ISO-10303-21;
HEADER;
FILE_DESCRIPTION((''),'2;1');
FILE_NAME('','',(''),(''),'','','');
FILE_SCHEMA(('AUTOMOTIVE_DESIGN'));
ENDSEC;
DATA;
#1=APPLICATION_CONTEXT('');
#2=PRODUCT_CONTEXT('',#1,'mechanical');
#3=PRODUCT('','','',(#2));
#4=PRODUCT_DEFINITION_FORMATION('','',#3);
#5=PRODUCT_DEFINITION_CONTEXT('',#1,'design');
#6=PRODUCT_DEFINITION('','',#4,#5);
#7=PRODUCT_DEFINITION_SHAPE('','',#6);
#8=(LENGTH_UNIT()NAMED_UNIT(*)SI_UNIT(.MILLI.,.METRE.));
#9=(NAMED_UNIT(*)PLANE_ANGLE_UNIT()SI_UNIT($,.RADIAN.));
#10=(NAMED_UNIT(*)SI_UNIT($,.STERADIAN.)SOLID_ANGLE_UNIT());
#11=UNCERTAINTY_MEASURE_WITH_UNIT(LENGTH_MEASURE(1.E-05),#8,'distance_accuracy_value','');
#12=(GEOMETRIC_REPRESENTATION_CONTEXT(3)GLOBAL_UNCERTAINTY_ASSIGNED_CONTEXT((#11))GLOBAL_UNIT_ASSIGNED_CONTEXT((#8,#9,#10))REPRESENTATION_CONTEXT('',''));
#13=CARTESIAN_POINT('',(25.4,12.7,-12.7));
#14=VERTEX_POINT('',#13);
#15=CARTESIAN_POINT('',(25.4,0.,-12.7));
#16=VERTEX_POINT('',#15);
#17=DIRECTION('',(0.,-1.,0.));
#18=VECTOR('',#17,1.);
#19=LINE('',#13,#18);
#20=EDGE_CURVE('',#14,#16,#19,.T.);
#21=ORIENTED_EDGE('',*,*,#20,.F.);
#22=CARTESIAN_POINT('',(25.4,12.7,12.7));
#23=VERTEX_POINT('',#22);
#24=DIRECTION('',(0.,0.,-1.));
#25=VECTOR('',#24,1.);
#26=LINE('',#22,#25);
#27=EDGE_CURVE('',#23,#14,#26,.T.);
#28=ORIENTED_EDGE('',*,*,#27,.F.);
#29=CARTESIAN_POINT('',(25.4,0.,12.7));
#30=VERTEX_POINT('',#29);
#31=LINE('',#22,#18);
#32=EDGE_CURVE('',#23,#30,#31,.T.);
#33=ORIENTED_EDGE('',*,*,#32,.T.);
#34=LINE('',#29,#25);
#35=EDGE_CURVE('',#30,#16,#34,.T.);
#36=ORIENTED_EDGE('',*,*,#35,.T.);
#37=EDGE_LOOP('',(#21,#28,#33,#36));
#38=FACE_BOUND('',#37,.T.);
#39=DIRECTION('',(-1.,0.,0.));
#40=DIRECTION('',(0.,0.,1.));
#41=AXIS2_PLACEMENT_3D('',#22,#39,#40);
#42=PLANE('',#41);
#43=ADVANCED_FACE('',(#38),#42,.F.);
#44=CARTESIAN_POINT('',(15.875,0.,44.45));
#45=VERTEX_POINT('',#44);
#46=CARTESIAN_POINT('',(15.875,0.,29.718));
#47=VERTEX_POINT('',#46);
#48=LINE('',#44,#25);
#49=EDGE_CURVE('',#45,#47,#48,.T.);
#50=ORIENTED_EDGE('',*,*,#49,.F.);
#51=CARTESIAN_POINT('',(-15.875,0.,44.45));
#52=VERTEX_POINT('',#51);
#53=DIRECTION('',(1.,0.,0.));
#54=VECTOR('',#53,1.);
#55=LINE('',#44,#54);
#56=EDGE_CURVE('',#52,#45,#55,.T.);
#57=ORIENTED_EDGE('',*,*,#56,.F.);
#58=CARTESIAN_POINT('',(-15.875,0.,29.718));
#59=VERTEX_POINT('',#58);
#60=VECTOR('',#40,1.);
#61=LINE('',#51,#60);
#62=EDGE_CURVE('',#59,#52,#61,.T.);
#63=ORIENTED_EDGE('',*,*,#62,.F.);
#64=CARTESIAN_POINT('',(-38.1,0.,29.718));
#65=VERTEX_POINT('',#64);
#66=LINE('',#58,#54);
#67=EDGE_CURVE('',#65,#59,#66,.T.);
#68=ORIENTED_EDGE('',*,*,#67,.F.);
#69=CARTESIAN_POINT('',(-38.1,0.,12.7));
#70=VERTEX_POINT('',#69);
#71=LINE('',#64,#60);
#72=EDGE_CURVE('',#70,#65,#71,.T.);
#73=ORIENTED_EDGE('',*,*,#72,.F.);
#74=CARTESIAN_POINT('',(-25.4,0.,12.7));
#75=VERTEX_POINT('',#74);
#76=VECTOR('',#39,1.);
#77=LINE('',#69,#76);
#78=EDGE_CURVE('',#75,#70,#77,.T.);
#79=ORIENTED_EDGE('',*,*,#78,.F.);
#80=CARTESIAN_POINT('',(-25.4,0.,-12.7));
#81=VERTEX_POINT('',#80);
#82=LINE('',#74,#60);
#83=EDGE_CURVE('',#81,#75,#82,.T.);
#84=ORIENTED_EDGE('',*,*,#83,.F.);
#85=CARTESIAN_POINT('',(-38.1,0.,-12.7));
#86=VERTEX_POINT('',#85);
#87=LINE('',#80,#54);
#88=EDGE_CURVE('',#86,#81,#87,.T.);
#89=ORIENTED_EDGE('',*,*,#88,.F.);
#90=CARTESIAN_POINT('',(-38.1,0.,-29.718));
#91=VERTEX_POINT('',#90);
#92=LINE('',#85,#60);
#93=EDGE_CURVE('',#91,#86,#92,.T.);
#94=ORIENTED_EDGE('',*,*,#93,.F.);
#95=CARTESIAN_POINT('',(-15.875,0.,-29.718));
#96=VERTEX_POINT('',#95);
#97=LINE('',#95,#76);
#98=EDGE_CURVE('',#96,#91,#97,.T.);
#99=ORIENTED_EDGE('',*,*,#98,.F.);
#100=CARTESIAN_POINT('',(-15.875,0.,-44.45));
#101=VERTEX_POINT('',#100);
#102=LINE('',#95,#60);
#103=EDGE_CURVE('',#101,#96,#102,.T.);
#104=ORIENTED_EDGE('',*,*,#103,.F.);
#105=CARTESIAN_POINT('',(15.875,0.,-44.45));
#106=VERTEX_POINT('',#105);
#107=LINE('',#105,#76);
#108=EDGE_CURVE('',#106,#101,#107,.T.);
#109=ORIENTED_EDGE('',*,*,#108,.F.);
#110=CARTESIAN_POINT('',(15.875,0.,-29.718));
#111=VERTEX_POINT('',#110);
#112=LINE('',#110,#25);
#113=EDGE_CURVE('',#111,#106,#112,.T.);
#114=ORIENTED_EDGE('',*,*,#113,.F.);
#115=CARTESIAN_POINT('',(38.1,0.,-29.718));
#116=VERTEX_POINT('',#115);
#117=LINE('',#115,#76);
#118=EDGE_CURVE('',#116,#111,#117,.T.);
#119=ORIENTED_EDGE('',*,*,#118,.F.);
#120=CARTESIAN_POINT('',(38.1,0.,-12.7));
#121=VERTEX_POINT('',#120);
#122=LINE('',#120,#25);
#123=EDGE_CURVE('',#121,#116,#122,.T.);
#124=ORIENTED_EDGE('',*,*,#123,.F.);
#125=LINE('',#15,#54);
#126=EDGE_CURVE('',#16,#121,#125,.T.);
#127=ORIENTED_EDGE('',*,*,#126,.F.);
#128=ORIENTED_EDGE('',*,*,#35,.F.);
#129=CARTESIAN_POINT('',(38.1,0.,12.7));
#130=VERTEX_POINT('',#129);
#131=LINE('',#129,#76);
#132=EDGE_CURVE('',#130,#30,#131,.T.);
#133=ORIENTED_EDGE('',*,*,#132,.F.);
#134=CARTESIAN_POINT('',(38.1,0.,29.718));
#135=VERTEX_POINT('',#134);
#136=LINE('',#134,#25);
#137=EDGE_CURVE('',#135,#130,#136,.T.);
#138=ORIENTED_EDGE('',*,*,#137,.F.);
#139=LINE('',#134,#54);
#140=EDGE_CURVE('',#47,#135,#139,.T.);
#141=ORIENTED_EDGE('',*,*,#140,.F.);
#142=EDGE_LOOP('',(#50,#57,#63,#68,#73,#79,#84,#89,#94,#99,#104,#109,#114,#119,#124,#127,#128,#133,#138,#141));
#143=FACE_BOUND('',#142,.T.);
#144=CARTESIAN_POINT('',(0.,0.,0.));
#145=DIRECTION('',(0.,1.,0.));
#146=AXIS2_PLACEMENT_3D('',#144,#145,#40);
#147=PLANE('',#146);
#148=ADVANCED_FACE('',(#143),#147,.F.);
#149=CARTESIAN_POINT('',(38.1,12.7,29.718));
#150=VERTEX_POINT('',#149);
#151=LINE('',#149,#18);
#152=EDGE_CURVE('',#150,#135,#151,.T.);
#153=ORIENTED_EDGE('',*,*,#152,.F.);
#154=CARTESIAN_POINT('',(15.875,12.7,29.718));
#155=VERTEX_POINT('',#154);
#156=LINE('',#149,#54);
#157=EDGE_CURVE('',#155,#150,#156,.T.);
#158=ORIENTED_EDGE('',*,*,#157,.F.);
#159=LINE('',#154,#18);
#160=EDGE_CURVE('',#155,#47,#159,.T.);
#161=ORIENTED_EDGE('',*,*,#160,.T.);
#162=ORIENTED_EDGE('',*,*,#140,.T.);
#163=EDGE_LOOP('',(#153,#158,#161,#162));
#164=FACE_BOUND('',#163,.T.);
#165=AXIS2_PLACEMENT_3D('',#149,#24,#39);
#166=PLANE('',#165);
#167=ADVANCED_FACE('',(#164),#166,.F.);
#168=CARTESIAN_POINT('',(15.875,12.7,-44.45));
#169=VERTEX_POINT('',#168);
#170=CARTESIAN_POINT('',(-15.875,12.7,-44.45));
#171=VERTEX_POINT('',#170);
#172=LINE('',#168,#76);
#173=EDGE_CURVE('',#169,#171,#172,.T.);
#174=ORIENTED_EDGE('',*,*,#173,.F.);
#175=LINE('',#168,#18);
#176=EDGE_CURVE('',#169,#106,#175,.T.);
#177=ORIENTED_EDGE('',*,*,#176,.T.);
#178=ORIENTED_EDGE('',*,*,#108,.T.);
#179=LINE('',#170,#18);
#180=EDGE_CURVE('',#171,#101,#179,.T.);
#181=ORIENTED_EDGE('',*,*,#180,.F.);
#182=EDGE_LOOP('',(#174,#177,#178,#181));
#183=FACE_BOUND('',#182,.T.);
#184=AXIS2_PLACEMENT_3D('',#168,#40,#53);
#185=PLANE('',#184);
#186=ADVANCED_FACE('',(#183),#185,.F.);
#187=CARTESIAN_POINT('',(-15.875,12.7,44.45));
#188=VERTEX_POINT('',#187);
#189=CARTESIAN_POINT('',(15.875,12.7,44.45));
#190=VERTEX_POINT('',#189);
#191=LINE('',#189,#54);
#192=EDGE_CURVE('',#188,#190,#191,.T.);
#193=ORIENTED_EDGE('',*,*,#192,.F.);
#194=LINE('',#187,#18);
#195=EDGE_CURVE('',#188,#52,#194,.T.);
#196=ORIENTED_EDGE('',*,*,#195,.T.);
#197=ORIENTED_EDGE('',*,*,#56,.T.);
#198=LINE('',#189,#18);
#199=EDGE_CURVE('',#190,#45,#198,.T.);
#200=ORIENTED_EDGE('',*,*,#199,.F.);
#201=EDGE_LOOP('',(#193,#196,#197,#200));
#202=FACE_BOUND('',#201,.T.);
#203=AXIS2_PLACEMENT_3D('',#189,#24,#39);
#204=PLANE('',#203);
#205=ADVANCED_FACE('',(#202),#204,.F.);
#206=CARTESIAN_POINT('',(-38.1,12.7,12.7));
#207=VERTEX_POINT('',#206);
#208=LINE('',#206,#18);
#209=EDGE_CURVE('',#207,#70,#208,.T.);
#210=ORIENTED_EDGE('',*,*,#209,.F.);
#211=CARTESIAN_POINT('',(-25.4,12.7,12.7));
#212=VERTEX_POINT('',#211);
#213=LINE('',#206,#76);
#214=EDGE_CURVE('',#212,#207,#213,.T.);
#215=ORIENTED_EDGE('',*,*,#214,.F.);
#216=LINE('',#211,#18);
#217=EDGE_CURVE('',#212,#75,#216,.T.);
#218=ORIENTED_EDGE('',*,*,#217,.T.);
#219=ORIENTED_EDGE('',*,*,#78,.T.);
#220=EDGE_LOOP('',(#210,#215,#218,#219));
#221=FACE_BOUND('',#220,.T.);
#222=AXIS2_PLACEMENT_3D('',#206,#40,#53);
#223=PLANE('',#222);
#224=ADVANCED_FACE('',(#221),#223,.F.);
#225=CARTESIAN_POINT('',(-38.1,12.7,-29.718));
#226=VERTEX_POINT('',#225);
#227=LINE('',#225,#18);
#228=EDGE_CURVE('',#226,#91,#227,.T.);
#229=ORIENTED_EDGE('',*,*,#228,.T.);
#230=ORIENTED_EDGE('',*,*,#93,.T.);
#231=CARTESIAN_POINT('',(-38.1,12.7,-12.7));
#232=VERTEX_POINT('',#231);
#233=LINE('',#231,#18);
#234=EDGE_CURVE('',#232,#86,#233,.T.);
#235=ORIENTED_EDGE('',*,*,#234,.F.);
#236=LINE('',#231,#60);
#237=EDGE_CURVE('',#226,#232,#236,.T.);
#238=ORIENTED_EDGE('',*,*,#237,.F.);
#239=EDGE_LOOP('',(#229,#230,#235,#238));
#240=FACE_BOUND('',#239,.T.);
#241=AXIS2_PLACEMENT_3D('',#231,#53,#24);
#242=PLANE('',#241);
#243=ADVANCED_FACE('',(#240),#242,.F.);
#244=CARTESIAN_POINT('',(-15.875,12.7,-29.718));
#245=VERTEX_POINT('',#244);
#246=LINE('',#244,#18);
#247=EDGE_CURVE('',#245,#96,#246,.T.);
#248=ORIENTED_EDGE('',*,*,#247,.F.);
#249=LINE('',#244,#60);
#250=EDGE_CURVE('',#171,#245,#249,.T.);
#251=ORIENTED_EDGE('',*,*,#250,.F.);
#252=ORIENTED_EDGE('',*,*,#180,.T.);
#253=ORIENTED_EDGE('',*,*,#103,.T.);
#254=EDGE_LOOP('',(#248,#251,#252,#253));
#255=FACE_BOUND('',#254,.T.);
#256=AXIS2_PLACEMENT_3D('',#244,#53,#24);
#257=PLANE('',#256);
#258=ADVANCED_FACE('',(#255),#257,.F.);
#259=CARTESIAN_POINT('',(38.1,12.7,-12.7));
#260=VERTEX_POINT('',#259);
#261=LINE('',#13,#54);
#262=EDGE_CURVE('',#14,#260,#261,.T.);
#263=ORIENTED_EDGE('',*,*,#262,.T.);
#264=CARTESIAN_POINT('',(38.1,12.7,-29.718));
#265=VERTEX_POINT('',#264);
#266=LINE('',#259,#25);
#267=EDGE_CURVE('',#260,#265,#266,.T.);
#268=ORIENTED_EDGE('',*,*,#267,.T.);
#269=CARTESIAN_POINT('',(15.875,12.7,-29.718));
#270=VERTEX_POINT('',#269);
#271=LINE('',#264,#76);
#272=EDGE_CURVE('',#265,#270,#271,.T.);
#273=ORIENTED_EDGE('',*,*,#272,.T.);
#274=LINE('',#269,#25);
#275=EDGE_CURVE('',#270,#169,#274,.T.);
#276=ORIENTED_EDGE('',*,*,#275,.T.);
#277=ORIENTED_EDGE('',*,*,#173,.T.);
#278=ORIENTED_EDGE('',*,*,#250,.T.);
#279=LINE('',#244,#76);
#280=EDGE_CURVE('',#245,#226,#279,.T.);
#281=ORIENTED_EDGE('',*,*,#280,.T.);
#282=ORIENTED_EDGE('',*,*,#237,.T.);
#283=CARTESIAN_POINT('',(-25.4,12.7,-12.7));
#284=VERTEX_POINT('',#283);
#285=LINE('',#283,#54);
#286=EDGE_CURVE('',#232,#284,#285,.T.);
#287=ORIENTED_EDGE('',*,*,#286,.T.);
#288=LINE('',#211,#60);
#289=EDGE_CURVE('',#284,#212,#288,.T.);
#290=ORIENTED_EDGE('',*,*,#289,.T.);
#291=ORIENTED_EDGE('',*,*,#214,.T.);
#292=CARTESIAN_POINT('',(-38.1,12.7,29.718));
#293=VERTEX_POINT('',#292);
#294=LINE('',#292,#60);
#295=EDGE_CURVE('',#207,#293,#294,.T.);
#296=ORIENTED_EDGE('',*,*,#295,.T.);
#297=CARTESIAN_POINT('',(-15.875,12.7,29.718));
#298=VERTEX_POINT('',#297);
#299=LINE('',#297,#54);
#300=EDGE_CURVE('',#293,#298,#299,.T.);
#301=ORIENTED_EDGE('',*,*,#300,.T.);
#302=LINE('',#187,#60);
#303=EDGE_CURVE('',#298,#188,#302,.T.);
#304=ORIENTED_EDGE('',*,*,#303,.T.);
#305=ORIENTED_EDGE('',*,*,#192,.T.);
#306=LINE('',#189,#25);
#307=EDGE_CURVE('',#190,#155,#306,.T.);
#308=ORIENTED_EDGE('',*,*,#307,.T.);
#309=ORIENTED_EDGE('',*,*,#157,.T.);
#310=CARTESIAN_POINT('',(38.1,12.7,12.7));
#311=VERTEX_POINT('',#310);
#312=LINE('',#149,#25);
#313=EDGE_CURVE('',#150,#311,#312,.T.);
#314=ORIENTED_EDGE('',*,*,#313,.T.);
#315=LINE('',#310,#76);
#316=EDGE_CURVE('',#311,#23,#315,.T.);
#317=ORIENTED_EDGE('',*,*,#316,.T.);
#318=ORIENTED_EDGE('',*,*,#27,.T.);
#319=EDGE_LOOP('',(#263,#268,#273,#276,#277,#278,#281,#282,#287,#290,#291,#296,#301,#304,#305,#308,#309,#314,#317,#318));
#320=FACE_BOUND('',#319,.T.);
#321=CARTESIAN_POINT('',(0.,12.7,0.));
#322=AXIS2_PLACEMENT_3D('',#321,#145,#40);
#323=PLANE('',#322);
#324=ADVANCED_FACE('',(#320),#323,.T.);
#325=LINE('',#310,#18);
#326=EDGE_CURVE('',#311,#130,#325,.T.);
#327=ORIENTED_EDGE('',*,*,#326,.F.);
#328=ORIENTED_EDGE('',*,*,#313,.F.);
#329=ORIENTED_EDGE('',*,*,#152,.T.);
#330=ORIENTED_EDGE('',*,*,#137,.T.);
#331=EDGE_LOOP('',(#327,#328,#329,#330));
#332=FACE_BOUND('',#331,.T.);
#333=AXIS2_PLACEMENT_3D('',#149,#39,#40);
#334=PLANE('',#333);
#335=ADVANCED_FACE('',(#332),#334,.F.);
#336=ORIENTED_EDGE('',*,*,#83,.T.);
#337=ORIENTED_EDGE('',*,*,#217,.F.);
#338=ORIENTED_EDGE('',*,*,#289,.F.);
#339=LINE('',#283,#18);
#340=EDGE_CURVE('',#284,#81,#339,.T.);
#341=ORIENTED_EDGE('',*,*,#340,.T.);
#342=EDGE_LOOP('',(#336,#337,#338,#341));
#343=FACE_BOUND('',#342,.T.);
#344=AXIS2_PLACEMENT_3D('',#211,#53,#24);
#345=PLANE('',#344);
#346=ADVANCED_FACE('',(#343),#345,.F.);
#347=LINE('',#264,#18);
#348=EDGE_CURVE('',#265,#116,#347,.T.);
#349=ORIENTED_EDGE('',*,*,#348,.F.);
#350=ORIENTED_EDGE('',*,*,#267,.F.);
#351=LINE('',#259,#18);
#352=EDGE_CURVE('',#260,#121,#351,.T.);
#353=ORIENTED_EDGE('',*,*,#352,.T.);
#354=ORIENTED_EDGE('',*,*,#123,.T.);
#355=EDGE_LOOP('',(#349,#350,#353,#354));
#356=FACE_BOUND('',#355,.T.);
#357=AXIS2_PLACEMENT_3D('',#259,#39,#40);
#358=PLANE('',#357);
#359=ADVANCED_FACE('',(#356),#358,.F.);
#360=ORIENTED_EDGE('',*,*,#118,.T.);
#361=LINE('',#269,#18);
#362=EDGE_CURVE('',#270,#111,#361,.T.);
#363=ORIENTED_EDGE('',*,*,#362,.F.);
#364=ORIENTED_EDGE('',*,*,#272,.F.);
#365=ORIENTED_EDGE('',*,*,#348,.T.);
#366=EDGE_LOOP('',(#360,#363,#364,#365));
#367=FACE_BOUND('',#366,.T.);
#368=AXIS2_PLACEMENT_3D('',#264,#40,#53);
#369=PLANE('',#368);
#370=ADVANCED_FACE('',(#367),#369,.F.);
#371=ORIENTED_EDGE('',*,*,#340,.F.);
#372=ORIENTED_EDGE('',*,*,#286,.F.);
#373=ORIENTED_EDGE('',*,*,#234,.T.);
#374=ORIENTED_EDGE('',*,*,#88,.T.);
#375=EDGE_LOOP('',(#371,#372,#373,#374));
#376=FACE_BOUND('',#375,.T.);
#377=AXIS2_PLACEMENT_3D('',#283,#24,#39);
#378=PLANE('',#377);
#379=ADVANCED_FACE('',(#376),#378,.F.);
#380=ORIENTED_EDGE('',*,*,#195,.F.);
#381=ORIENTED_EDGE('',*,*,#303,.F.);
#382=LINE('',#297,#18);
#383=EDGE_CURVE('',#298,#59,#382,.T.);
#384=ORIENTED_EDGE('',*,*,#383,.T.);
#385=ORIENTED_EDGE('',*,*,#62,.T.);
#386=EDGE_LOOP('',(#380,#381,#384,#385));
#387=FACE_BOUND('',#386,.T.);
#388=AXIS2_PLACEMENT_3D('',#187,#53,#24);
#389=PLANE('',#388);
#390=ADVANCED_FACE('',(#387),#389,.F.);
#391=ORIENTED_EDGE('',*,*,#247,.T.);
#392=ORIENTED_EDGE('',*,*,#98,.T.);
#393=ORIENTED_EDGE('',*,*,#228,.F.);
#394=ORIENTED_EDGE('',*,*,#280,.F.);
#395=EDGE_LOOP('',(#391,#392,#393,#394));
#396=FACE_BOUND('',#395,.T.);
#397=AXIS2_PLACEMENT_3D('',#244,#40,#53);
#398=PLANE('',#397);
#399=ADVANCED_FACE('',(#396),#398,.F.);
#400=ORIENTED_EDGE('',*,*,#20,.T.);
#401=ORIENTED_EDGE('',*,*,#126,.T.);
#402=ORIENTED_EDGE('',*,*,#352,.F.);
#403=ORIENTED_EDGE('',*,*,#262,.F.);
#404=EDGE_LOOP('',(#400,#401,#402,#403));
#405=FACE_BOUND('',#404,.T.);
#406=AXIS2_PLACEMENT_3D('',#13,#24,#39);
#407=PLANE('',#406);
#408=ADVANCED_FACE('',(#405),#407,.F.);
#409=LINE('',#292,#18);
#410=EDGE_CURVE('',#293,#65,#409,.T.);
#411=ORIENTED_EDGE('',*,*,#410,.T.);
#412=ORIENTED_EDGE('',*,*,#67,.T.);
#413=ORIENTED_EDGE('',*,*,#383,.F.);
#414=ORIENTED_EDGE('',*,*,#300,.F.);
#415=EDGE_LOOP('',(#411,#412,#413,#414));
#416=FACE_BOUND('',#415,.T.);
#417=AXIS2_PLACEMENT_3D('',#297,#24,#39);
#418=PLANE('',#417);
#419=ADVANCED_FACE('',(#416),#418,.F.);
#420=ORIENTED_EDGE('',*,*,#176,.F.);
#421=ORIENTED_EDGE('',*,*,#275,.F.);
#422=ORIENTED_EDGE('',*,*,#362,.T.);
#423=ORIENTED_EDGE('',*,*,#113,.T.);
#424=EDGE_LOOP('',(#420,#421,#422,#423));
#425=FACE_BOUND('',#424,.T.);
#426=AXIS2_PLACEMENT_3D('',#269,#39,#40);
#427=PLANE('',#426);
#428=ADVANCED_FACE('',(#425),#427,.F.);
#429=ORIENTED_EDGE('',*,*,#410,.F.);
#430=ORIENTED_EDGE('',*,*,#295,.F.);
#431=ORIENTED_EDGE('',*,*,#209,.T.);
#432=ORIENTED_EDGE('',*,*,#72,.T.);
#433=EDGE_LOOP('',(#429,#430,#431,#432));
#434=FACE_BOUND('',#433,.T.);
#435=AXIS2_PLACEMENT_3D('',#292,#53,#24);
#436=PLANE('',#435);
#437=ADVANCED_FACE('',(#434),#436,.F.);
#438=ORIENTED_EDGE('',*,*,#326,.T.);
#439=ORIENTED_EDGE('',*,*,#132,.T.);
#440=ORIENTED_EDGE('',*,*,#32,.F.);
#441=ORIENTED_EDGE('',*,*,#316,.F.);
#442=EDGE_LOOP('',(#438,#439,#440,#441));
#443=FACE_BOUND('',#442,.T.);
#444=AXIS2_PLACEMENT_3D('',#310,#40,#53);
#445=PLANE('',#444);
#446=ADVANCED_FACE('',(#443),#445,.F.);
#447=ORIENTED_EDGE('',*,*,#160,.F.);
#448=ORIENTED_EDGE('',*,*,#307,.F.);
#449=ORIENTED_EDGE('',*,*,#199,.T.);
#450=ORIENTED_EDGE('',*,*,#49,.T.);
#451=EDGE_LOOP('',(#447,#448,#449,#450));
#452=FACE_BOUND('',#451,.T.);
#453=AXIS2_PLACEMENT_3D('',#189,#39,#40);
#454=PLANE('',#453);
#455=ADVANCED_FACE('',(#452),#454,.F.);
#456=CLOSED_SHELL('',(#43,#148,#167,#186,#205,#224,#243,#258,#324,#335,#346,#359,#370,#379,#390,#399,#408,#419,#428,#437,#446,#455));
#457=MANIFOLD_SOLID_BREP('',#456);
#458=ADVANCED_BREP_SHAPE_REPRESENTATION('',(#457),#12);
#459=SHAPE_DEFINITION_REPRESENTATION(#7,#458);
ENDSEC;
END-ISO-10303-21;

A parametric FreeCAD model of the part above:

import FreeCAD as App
import Part
import Sketcher

V = App.Vector
Q = App.Units.Quantity

doc = App.newDocument("Part")
body = doc.addObject("PartDesign::Body", "Body")

# Sketch on XZ plane
sketch1 = doc.addObject("Sketcher::SketchObject", "Sketch")
body.addObject(sketch1)
sketch1.AttachmentSupport = (doc.XZ_Plane, [""])
sketch1.MapMode = "FlatFace"
sketch1.addGeometry(Part.LineSegment(V(-38.1, 29.718, 0), V(-15.875, 29.718, 0)), False)
sketch1.addGeometry(Part.LineSegment(V(-15.875, 29.718, 0), V(-15.875, 44.45, 0)), False)
sketch1.addGeometry(Part.LineSegment(V(-15.875, 44.45, 0), V(15.875, 44.45, 0)), False)
sketch1.addGeometry(Part.LineSegment(V(15.875, 44.45, 0), V(15.875, 29.718, 0)), False)
sketch1.addGeometry(Part.LineSegment(V(15.875, 29.718, 0), V(38.1, 29.718, 0)), False)
sketch1.addGeometry(Part.LineSegment(V(38.1, 29.718, 0), V(38.1, 12.7, 0)), False)
sketch1.addGeometry(Part.LineSegment(V(38.1, 12.7, 0), V(25.4, 12.7, 0)), False)
sketch1.addGeometry(Part.LineSegment(V(25.4, 12.7, 0), V(25.4, -12.7, 0)), False)
sketch1.addGeometry(Part.LineSegment(V(25.4, -12.7, 0), V(38.1, -12.7, 0)), False)
sketch1.addGeometry(Part.LineSegment(V(38.1, -12.7, 0), V(38.1, -29.718, 0)), False)
sketch1.addGeometry(Part.LineSegment(V(38.1, -29.718, 0), V(15.875, -29.718, 0)), False)
sketch1.addGeometry(Part.LineSegment(V(15.875, -29.718, 0), V(15.875, -44.45, 0)), False)
sketch1.addGeometry(Part.LineSegment(V(15.875, -44.45, 0), V(-15.875, -44.45, 0)), False)
sketch1.addGeometry(Part.LineSegment(V(-15.875, -44.45, 0), V(-15.875, -29.718, 0)), False)
sketch1.addGeometry(Part.LineSegment(V(-15.875, -29.718, 0), V(-38.1, -29.718, 0)), False)
sketch1.addGeometry(Part.LineSegment(V(-38.1, -29.718, 0), V(-38.1, -12.7, 0)), False)
sketch1.addGeometry(Part.LineSegment(V(-38.1, -12.7, 0), V(-25.4, -12.7, 0)), False)
sketch1.addGeometry(Part.LineSegment(V(-25.4, -12.7, 0), V(-25.4, 12.7, 0)), False)
sketch1.addGeometry(Part.LineSegment(V(-25.4, 12.7, 0), V(-38.1, 12.7, 0)), False)
sketch1.addGeometry(Part.LineSegment(V(-38.1, 12.7, 0), V(-38.1, 29.718, 0)), False)
sketch1.addConstraint(Sketcher.Constraint("Coincident", 0, 2, 1, 1))
sketch1.addConstraint(Sketcher.Constraint("Coincident", 1, 2, 2, 1))
sketch1.addConstraint(Sketcher.Constraint("Coincident", 2, 2, 3, 1))
sketch1.addConstraint(Sketcher.Constraint("Coincident", 3, 2, 4, 1))
sketch1.addConstraint(Sketcher.Constraint("Coincident", 4, 2, 5, 1))
sketch1.addConstraint(Sketcher.Constraint("Coincident", 5, 2, 6, 1))
sketch1.addConstraint(Sketcher.Constraint("Coincident", 6, 2, 7, 1))
sketch1.addConstraint(Sketcher.Constraint("Coincident", 7, 2, 8, 1))
sketch1.addConstraint(Sketcher.Constraint("Coincident", 8, 2, 9, 1))
sketch1.addConstraint(Sketcher.Constraint("Coincident", 9, 2, 10, 1))
sketch1.addConstraint(Sketcher.Constraint("Coincident", 10, 2, 11, 1))
sketch1.addConstraint(Sketcher.Constraint("Coincident", 11, 2, 12, 1))
sketch1.addConstraint(Sketcher.Constraint("Coincident", 12, 2, 13, 1))
sketch1.addConstraint(Sketcher.Constraint("Coincident", 13, 2, 14, 1))
sketch1.addConstraint(Sketcher.Constraint("Coincident", 14, 2, 15, 1))
sketch1.addConstraint(Sketcher.Constraint("Coincident", 15, 2, 16, 1))
sketch1.addConstraint(Sketcher.Constraint("Coincident", 16, 2, 17, 1))
sketch1.addConstraint(Sketcher.Constraint("Coincident", 17, 2, 18, 1))
sketch1.addConstraint(Sketcher.Constraint("Coincident", 18, 2, 19, 1))
sketch1.addConstraint(Sketcher.Constraint("Coincident", 19, 2, 0, 1))
sketch1.addConstraint(Sketcher.Constraint("Horizontal", 0))
sketch1.addConstraint(Sketcher.Constraint("Vertical", 1))
sketch1.addConstraint(Sketcher.Constraint("Horizontal", 2))
sketch1.addConstraint(Sketcher.Constraint("Vertical", 3))
sketch1.addConstraint(Sketcher.Constraint("Horizontal", 4))
sketch1.addConstraint(Sketcher.Constraint("Vertical", 5))
sketch1.addConstraint(Sketcher.Constraint("Horizontal", 6))
sketch1.addConstraint(Sketcher.Constraint("Vertical", 7))
sketch1.addConstraint(Sketcher.Constraint("Horizontal", 8))
sketch1.addConstraint(Sketcher.Constraint("Vertical", 9))
sketch1.addConstraint(Sketcher.Constraint("Horizontal", 10))
sketch1.addConstraint(Sketcher.Constraint("Vertical", 11))
sketch1.addConstraint(Sketcher.Constraint("Horizontal", 12))
sketch1.addConstraint(Sketcher.Constraint("Vertical", 13))
sketch1.addConstraint(Sketcher.Constraint("Horizontal", 14))
sketch1.addConstraint(Sketcher.Constraint("Vertical", 15))
sketch1.addConstraint(Sketcher.Constraint("Horizontal", 16))
sketch1.addConstraint(Sketcher.Constraint("Vertical", 17))
sketch1.addConstraint(Sketcher.Constraint("Horizontal", 18))
sketch1.addConstraint(Sketcher.Constraint("Vertical", 19))
sketch1.addConstraint(Sketcher.Constraint("Symmetric", 0, 2, 10, 2, -1, 1))
sketch1.addConstraint(Sketcher.Constraint("Symmetric", 2, 2, 12, 2, -1, 1))
sketch1.addConstraint(Sketcher.Constraint("Symmetric", 4, 2, 14, 2, -1, 1))
sketch1.addConstraint(Sketcher.Constraint("Symmetric", 6, 2, 16, 2, -1, 1))
sketch1.addConstraint(Sketcher.Constraint("Symmetric", 8, 2, 18, 2, -1, 1))
sketch1.addConstraint(Sketcher.Constraint("Symmetric", 0, 2, 3, 2, -2))
sketch1.addConstraint(Sketcher.Constraint("Symmetric", 8, 2, 15, 2, -2))
sketch1.addConstraint(Sketcher.Constraint("DistanceY", 7, 2, 7, 1, Q("1 in")))
sketch1.addConstraint(Sketcher.Constraint("DistanceX", 6, 2, 6, 1, Q("0.5 in")))
sketch1.addConstraint(Sketcher.Constraint("DistanceX", -1, 1, 6, 2, Q("1 in")))
sketch1.addConstraint(Sketcher.Constraint("DistanceX", 2, 1, 2, 2, Q("1.25 in")))
sketch1.addConstraint(Sketcher.Constraint("DistanceY", 1, 1, 1, 2, Q("0.58 in")))
sketch1.addConstraint(Sketcher.Constraint("DistanceY", 5, 2, 5, 1, Q("0.67 in")))
pad1 = doc.addObject("PartDesign::Pad", "Pad")
body.addObject(pad1)
pad1.Profile = sketch1
pad1.Length = Q("0.5 in")
pad1.Reversed = True

doc.recompute()
